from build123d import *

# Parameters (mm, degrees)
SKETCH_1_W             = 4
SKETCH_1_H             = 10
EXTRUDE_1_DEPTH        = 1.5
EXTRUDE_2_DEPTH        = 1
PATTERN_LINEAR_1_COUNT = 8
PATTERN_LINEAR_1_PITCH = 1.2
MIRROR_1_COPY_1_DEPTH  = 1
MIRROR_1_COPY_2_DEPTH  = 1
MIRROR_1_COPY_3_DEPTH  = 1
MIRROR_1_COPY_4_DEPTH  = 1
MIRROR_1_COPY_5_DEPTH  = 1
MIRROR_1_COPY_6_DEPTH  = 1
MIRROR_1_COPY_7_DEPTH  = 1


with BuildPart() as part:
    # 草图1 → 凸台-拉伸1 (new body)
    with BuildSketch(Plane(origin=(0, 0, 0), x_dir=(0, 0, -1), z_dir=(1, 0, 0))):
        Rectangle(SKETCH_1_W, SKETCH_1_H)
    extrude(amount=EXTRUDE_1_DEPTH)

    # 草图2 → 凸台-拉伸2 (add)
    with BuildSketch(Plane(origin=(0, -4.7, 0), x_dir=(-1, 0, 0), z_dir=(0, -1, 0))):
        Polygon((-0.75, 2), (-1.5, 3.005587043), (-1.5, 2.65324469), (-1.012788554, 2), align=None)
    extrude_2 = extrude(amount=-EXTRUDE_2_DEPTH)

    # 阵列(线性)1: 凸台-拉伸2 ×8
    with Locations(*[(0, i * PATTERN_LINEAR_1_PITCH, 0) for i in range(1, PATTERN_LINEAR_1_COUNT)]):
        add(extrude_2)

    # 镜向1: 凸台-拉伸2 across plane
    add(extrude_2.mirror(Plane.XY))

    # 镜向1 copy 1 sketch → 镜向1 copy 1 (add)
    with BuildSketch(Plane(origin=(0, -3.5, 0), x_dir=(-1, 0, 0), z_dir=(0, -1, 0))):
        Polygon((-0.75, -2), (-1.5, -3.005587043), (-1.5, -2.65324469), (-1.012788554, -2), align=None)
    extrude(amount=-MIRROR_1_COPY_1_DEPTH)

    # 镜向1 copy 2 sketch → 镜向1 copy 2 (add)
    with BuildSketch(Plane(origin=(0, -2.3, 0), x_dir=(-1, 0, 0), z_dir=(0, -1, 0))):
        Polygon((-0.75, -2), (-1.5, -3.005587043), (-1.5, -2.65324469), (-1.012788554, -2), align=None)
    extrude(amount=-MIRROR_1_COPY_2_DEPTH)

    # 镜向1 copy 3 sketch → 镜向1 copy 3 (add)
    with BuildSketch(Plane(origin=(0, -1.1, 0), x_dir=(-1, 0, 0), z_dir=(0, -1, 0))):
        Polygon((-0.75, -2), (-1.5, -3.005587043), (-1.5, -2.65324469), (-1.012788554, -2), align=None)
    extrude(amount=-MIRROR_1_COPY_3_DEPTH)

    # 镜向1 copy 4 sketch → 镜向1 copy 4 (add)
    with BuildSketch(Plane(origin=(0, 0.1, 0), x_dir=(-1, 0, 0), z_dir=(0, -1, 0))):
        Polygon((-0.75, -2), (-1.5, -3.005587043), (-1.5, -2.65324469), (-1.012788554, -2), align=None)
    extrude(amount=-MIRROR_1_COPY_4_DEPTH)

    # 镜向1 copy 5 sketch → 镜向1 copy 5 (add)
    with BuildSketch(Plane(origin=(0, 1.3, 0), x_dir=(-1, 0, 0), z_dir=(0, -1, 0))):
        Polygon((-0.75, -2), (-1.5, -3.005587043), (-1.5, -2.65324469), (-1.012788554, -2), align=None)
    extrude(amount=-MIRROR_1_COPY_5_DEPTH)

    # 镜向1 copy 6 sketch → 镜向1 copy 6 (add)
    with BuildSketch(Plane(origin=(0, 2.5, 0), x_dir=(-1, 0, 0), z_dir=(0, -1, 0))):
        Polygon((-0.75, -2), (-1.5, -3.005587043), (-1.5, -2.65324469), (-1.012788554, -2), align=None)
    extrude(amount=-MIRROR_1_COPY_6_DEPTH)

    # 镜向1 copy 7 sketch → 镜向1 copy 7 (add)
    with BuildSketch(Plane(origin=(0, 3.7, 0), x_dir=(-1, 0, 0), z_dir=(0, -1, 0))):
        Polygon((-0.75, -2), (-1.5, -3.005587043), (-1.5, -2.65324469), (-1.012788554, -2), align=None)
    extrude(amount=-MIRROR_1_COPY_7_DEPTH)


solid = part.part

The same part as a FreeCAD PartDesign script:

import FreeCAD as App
import Part
import Sketcher
Q = App.Units.Quantity


def add_polygon(sketch, points):
    """Adds a closed chain of lines whose ends are joined by coincident constraints."""
    first, n = sketch.GeometryCount, len(points)
    for a, b in zip(points, points[1:] + points[:1]):
        sketch.addGeometry(Part.LineSegment(App.Vector(*a, 0), App.Vector(*b, 0)), False)
    for i in range(n):
        sketch.addConstraint(Sketcher.Constraint("Coincident", first + i, 2, first + (i + 1) % n, 1))

doc = App.newDocument("Part")
params = doc.addObject("Spreadsheet::Sheet", "Params")
for row, (alias, value) in enumerate([
    ("sketch1_width", "10 mm"),
    ("sketch1_height", "4 mm"),
    ("pad1_length", "1.5 mm"),
    ("pad2_length", "1 mm"),
    ("linearpattern_pitch", "1.2 mm"),
    ("pad3_length", "1 mm"),
    ("pad4_length", "1 mm"),
    ("pad5_length", "1 mm"),
    ("pad6_length", "1 mm"),
    ("pad7_length", "1 mm"),
    ("pad8_length", "1 mm"),
    ("pad9_length", "1 mm"),
], start=1):
    params.set(f"A{row}", alias)
    params.set(f"B{row}", "=" + value)
    params.setAlias(f"B{row}", alias)

body = doc.addObject("PartDesign::Body", "Body")

sketch1 = doc.addObject("Sketcher::SketchObject", "Sketch")
body.addObject(sketch1)
sketch1.AttachmentSupport = (doc.YZ_Plane, [""])
sketch1.MapMode = "FlatFace"
add_polygon(sketch1, [(5, 2), (-5, 2), (-5, -2), (5, -2)])
sketch1.addConstraint([
    Sketcher.Constraint("Horizontal", 0),
    Sketcher.Constraint("Vertical", 1),
    Sketcher.Constraint("Horizontal", 2),
    Sketcher.Constraint("Vertical", 3),
    Sketcher.Constraint("Symmetric", 0, 2, 2, 2, -1, 1),
    Sketcher.Constraint("DistanceX", 0, 2, 0, 1, Q("10 mm")),
    Sketcher.Constraint("DistanceY", 1, 2, 1, 1, Q("4 mm")),
])
sketch1.setExpression("Constraints[9]", "Params.sketch1_width")
sketch1.setExpression("Constraints[10]", "Params.sketch1_height")
pad1 = doc.addObject("PartDesign::Pad", "Pad")
body.addObject(pad1)
pad1.Profile = sketch1
pad1.setExpression("Length", "Params.pad1_length")

sketch2 = doc.addObject("Sketcher::SketchObject", "Sketch001")
body.addObject(sketch2)
sketch2.AttachmentSupport = (doc.XZ_Plane, [""])
sketch2.MapMode = "FlatFace"
sketch2.AttachmentOffset = App.Placement(App.Vector(0, 0, 4.7), App.Rotation())
add_polygon(sketch2, [(0.75, -2), (1.5, -3.005587), (1.5, -2.653245), (1.012789, -2)])
sketch2.addConstraint([
    Sketcher.Constraint("Vertical", 1),
    Sketcher.Constraint("Horizontal", 3),
    Sketcher.Constraint("Parallel", 0, 2),
    Sketcher.Constraint("DistanceY", 2, 2, -1, 1, Q("2 mm")),
    Sketcher.Constraint("DistanceX", -1, 1, 0, 2, Q("1.5 mm")),
    Sketcher.Constraint("DistanceX", -1, 1, 3, 2, Q("0.75 mm")),
    Sketcher.Constraint("DistanceX", 3, 2, 3, 1, Q("0.262789 mm")),
    Sketcher.Constraint("DistanceY", 1, 1, 1, 2, Q("0.352342 mm")),
])
pad2 = doc.addObject("PartDesign::Pad", "Pad001")
body.addObject(pad2)
pad2.Profile = sketch2
pad2.setExpression("Length", "Params.pad2_length")
pad2.Reversed = True
doc.recompute()

linearpattern = doc.addObject("PartDesign::LinearPattern", "LinearPattern")
body.addObject(linearpattern)
linearpattern.Originals = [pad2]
linearpattern.Direction = (doc.Y_Axis, [""])
linearpattern.Mode = "offset"
linearpattern.setExpression("Offset", "Params.linearpattern_pitch")
linearpattern.Occurrences = 8
body.Tip = linearpattern
doc.recompute()

mirrored = doc.addObject("PartDesign::Mirrored", "Mirrored")
body.addObject(mirrored)
mirrored.Originals = [pad2]
mirrored.MirrorPlane = (doc.XY_Plane, [""])
body.Tip = mirrored

sketch3 = doc.addObject("Sketcher::SketchObject", "Sketch002")
body.addObject(sketch3)
sketch3.AttachmentSupport = (doc.XZ_Plane, [""])
sketch3.MapMode = "FlatFace"
sketch3.AttachmentOffset = App.Placement(App.Vector(0, 0, 3.5), App.Rotation())
add_polygon(sketch3, [(1.5, 3.005587), (0.75, 2), (1.012789, 2), (1.5, 2.653245)])
sketch3.addConstraint([
    Sketcher.Constraint("Horizontal", 1),
    Sketcher.Constraint("Vertical", 3),
    Sketcher.Constraint("Parallel", 0, 2),
    Sketcher.Constraint("DistanceY", -1, 1, 0, 2, Q("2 mm")),
    Sketcher.Constraint("DistanceX", -1, 1, 2, 2, Q("1.5 mm")),
    Sketcher.Constraint("DistanceX", -1, 1, 0, 2, Q("0.75 mm")),
    Sketcher.Constraint("DistanceX", 1, 1, 1, 2, Q("0.262789 mm")),
    Sketcher.Constraint("DistanceY", 3, 1, 3, 2, Q("0.352342 mm")),
])
pad3 = doc.addObject("PartDesign::Pad", "Pad002")
body.addObject(pad3)
pad3.Profile = sketch3
pad3.setExpression("Length", "Params.pad3_length")
pad3.Reversed = True

sketch4 = doc.addObject("Sketcher::SketchObject", "Sketch003")
body.addObject(sketch4)
sketch4.AttachmentSupport = (doc.XZ_Plane, [""])
sketch4.MapMode = "FlatFace"
sketch4.AttachmentOffset = App.Placement(App.Vector(0, 0, 2.3), App.Rotation())
add_polygon(sketch4, [(1.5, 3.005587), (0.75, 2), (1.012789, 2), (1.5, 2.653245)])
sketch4.addConstraint([
    Sketcher.Constraint("Horizontal", 1),
    Sketcher.Constraint("Vertical", 3),
    Sketcher.Constraint("Parallel", 0, 2),
    Sketcher.Constraint("DistanceY", -1, 1, 0, 2, Q("2 mm")),
    Sketcher.Constraint("DistanceX", -1, 1, 2, 2, Q("1.5 mm")),
    Sketcher.Constraint("DistanceX", -1, 1, 0, 2, Q("0.75 mm")),
    Sketcher.Constraint("DistanceX", 1, 1, 1, 2, Q("0.262789 mm")),
    Sketcher.Constraint("DistanceY", 3, 1, 3, 2, Q("0.352342 mm")),
])
pad4 = doc.addObject("PartDesign::Pad", "Pad003")
body.addObject(pad4)
pad4.Profile = sketch4
pad4.setExpression("Length", "Params.pad4_length")
pad4.Reversed = True

sketch5 = doc.addObject("Sketcher::SketchObject", "Sketch004")
body.addObject(sketch5)
sketch5.AttachmentSupport = (doc.XZ_Plane, [""])
sketch5.MapMode = "FlatFace"
sketch5.AttachmentOffset = App.Placement(App.Vector(0, 0, 1.1), App.Rotation())
add_polygon(sketch5, [(1.5, 3.005587), (0.75, 2), (1.012789, 2), (1.5, 2.653245)])
sketch5.addConstraint([
    Sketcher.Constraint("Horizontal", 1),
    Sketcher.Constraint("Vertical", 3),
    Sketcher.Constraint("Parallel", 0, 2),
    Sketcher.Constraint("DistanceY", -1, 1, 0, 2, Q("2 mm")),
    Sketcher.Constraint("DistanceX", -1, 1, 2, 2, Q("1.5 mm")),
    Sketcher.Constraint("DistanceX", -1, 1, 0, 2, Q("0.75 mm")),
    Sketcher.Constraint("DistanceX", 1, 1, 1, 2, Q("0.262789 mm")),
    Sketcher.Constraint("DistanceY", 3, 1, 3, 2, Q("0.352342 mm")),
])
pad5 = doc.addObject("PartDesign::Pad", "Pad004")
body.addObject(pad5)
pad5.Profile = sketch5
pad5.setExpression("Length", "Params.pad5_length")
pad5.Reversed = True

sketch6 = doc.addObject("Sketcher::SketchObject", "Sketch005")
body.addObject(sketch6)
sketch6.AttachmentSupport = (doc.XZ_Plane, [""])
sketch6.MapMode = "FlatFace"
sketch6.AttachmentOffset = App.Placement(App.Vector(0, 0, -0.1), App.Rotation())
add_polygon(sketch6, [(1.5, 3.005587), (0.75, 2), (1.012789, 2), (1.5, 2.653245)])
sketch6.addConstraint([
    Sketcher.Constraint("Horizontal", 1),
    Sketcher.Constraint("Vertical", 3),
    Sketcher.Constraint("Parallel", 0, 2),
    Sketcher.Constraint("DistanceY", -1, 1, 0, 2, Q("2 mm")),
    Sketcher.Constraint("DistanceX", -1, 1, 2, 2, Q("1.5 mm")),
    Sketcher.Constraint("DistanceX", -1, 1, 0, 2, Q("0.75 mm")),
    Sketcher.Constraint("DistanceX", 1, 1, 1, 2, Q("0.262789 mm")),
    Sketcher.Constraint("DistanceY", 3, 1, 3, 2, Q("0.352342 mm")),
])
pad6 = doc.addObject("PartDesign::Pad", "Pad005")
body.addObject(pad6)
pad6.Profile = sketch6
pad6.setExpression("Length", "Params.pad6_length")
pad6.Reversed = True

sketch7 = doc.addObject("Sketcher::SketchObject", "Sketch006")
body.addObject(sketch7)
sketch7.AttachmentSupport = (doc.XZ_Plane, [""])
sketch7.MapMode = "FlatFace"
sketch7.AttachmentOffset = App.Placement(App.Vector(0, 0, -1.3), App.Rotation())
add_polygon(sketch7, [(1.5, 3.005587), (0.75, 2), (1.012789, 2), (1.5, 2.653245)])
sketch7.addConstraint([
    Sketcher.Constraint("Horizontal", 1),
    Sketcher.Constraint("Vertical", 3),
    Sketcher.Constraint("Parallel", 0, 2),
    Sketcher.Constraint("DistanceY", -1, 1, 0, 2, Q("2 mm")),
    Sketcher.Constraint("DistanceX", -1, 1, 2, 2, Q("1.5 mm")),
    Sketcher.Constraint("DistanceX", -1, 1, 0, 2, Q("0.75 mm")),
    Sketcher.Constraint("DistanceX", 1, 1, 1, 2, Q("0.262789 mm")),
    Sketcher.Constraint("DistanceY", 3, 1, 3, 2, Q("0.352342 mm")),
])
pad7 = doc.addObject("PartDesign::Pad", "Pad006")
body.addObject(pad7)
pad7.Profile = sketch7
pad7.setExpression("Length", "Params.pad7_length")
pad7.Reversed = True

sketch8 = doc.addObject("Sketcher::SketchObject", "Sketch007")
body.addObject(sketch8)
sketch8.AttachmentSupport = (doc.XZ_Plane, [""])
sketch8.MapMode = "FlatFace"
sketch8.AttachmentOffset = App.Placement(App.Vector(0, 0, -2.5), App.Rotation())
add_polygon(sketch8, [(1.5, 3.005587), (0.75, 2), (1.012789, 2), (1.5, 2.653245)])
sketch8.addConstraint([
    Sketcher.Constraint("Horizontal", 1),
    Sketcher.Constraint("Vertical", 3),
    Sketcher.Constraint("Parallel", 0, 2),
    Sketcher.Constraint("DistanceY", -1, 1, 0, 2, Q("2 mm")),
    Sketcher.Constraint("DistanceX", -1, 1, 2, 2, Q("1.5 mm")),
    Sketcher.Constraint("DistanceX", -1, 1, 0, 2, Q("0.75 mm")),
    Sketcher.Constraint("DistanceX", 1, 1, 1, 2, Q("0.262789 mm")),
    Sketcher.Constraint("DistanceY", 3, 1, 3, 2, Q("0.352342 mm")),
])
pad8 = doc.addObject("PartDesign::Pad", "Pad007")
body.addObject(pad8)
pad8.Profile = sketch8
pad8.setExpression("Length", "Params.pad8_length")
pad8.Reversed = True

sketch9 = doc.addObject("Sketcher::SketchObject", "Sketch008")
body.addObject(sketch9)
sketch9.AttachmentSupport = (doc.XZ_Plane, [""])
sketch9.MapMode = "FlatFace"
sketch9.AttachmentOffset = App.Placement(App.Vector(0, 0, -3.7), App.Rotation())
add_polygon(sketch9, [(1.5, 3.005587), (0.75, 2), (1.012789, 2), (1.5, 2.653245)])
sketch9.addConstraint([
    Sketcher.Constraint("Horizontal", 1),
    Sketcher.Constraint("Vertical", 3),
    Sketcher.Constraint("Parallel", 0, 2),
    Sketcher.Constraint("DistanceY", -1, 1, 0, 2, Q("2 mm")),
    Sketcher.Constraint("DistanceX", -1, 1, 2, 2, Q("1.5 mm")),
    Sketcher.Constraint("DistanceX", -1, 1, 0, 2, Q("0.75 mm")),
    Sketcher.Constraint("DistanceX", 1, 1, 1, 2, Q("0.262789 mm")),
    Sketcher.Constraint("DistanceY", 3, 1, 3, 2, Q("0.352342 mm")),
])
pad9 = doc.addObject("PartDesign::Pad", "Pad008")
body.addObject(pad9)
pad9.Profile = sketch9
pad9.setExpression("Length", "Params.pad9_length")
pad9.Reversed = True

doc.recompute()
